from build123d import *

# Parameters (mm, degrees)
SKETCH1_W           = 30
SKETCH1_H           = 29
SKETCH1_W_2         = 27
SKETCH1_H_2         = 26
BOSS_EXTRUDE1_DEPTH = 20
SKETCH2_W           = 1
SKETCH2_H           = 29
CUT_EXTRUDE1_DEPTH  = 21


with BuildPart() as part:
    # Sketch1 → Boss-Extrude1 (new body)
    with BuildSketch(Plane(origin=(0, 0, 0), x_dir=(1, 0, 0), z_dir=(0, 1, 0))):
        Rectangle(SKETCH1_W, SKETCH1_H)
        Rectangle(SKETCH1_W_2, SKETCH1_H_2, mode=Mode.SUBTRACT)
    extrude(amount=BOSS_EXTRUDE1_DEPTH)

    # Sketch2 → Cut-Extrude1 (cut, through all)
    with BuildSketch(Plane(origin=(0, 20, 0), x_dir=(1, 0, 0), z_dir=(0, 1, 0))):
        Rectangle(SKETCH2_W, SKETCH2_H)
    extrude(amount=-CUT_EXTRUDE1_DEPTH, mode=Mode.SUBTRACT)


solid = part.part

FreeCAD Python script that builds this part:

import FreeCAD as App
import Part
import Sketcher

V = App.Vector
Q = App.Units.Quantity


def add_polygon(sketch, points):
    """Adds a closed chain of lines whose ends are joined by coincident constraints."""
    first, n = sketch.GeometryCount, len(points)
    for a, b in zip(points, points[1:] + points[:1]):
        sketch.addGeometry(Part.LineSegment(App.Vector(*a, 0), App.Vector(*b, 0)), False)
    for i in range(n):
        sketch.addConstraint(Sketcher.Constraint("Coincident", first + i, 2, first + (i + 1) % n, 1))

doc = App.newDocument("Part")
body = doc.addObject("PartDesign::Body", "Body")
body.AllowCompound = True

sketch1 = body.newObject("Sketcher::SketchObject", "Sketch")
sketch1.AttachmentSupport = (doc.getObject("XZ_Plane"), [""])
sketch1.MapMode = "FlatFace"
add_polygon(sketch1, [(-15, -14), (-15, 14), (15, 14), (15, -14)])
add_polygon(sketch1, [(14, 13), (-14, 13), (-14, -13), (14, -13)])
sketch1.addConstraint([
    Sketcher.Constraint("Vertical", 0),
    Sketcher.Constraint("Horizontal", 1),
    Sketcher.Constraint("Vertical", 2),
    Sketcher.Constraint("Horizontal", 3),
    Sketcher.Constraint("Horizontal", 4),
    Sketcher.Constraint("Vertical", 5),
    Sketcher.Constraint("Horizontal", 6),
    Sketcher.Constraint("Vertical", 7),
    Sketcher.Constraint("Symmetric", 0, 2, 2, 2, -1, 1),
    Sketcher.Constraint("Symmetric", 4, 2, 6, 2, -1, 1),
    Sketcher.Constraint("DistanceX", 1, 1, 1, 2, Q("30 mm")),
    Sketcher.Constraint("DistanceX", 4, 2, 4, 1, Q("27 mm")),
    Sketcher.Constraint("DistanceY", 0, 1, 0, 2, Q("29 mm")),
    Sketcher.Constraint("DistanceY", 5, 2, 5, 1, Q("26 mm")),
])
pad1 = body.newObject("PartDesign::Pad", "Pad")
pad1.Profile = sketch1
pad1.Length = 20
pad1.Reversed = True

sketch2 = body.newObject("Sketcher::SketchObject", "Sketch001")
sketch2.AttachmentSupport = (doc.getObject("XZ_Plane"), [""])
sketch2.MapMode = "FlatFace"
sketch2.AttachmentOffset = App.Placement(V(0, 0, -20), App.Rotation())
add_polygon(sketch2, [(-0.5, -14.5), (-0.5, 14.5), (0.5, 14.5), (0.5, -14.5)])
sketch2.addConstraint([
    Sketcher.Constraint("Vertical", 0),
    Sketcher.Constraint("Horizontal", 1),
    Sketcher.Constraint("Vertical", 2),
    Sketcher.Constraint("Horizontal", 3),
    Sketcher.Constraint("Symmetric", 0, 2, 2, 2, -1, 1),
    Sketcher.Constraint("DistanceX", 1, 1, 1, 2, Q("1 mm")),
    Sketcher.Constraint("DistanceY", 0, 1, 0, 2, Q("29 mm")),
])
pocket1 = body.newObject("PartDesign::Pocket", "Pocket")
pocket1.Profile = sketch2
pocket1.Type = "ThroughAll"
pocket1.Reversed = True

doc.recompute()
